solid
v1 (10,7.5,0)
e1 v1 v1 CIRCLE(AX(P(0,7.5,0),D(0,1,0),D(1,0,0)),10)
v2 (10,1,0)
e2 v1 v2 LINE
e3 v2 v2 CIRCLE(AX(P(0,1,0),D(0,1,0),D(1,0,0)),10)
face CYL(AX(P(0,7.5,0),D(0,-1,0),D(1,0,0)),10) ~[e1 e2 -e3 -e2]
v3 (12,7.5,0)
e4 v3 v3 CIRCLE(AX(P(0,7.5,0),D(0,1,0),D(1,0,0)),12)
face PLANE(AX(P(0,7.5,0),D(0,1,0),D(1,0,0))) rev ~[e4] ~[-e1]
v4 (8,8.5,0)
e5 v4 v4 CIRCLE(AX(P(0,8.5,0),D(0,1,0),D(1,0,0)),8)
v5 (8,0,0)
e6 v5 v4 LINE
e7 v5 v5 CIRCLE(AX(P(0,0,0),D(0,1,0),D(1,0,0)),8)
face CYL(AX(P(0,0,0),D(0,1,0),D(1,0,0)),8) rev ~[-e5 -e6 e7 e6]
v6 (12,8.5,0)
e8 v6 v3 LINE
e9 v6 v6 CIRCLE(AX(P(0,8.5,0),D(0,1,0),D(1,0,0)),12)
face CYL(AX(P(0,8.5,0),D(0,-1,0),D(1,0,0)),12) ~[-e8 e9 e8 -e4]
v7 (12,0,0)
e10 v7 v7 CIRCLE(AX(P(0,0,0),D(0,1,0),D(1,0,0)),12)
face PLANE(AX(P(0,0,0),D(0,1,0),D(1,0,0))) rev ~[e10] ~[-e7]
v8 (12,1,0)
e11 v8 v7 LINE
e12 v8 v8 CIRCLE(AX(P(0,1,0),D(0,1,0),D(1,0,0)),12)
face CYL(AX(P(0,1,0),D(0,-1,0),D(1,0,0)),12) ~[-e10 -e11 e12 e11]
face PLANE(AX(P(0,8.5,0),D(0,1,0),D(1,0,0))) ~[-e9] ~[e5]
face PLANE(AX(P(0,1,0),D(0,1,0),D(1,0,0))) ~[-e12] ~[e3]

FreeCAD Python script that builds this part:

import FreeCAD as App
import Part
import Sketcher

V = App.Vector
Q = App.Units.Quantity


def add_polygon(sketch, points):
    """Adds a closed chain of lines whose ends are joined by coincident constraints."""
    first, n = sketch.GeometryCount, len(points)
    for a, b in zip(points, points[1:] + points[:1]):
        sketch.addGeometry(Part.LineSegment(App.Vector(*a, 0), App.Vector(*b, 0)), False)
    for i in range(n):
        sketch.addConstraint(Sketcher.Constraint("Coincident", first + i, 2, first + (i + 1) % n, 1))

doc = App.newDocument("Part")
body = doc.addObject("PartDesign::Body", "Body")

# Sketch on XY plane
sketch1 = body.newObject("Sketcher::SketchObject", "Sketch")
sketch1.AttachmentSupport = (doc.getObject("XY_Plane"), [""])
sketch1.MapMode = "FlatFace"
add_polygon(sketch1, [(8, 8.5), (8, 0), (12, 0), (12, 1), (10, 1), (10, 7.5), (12, 7.5), (12, 8.5)])  # lines 0-7
sketch1.addConstraint([
    Sketcher.Constraint("Vertical", 0),
    Sketcher.Constraint("Horizontal", 1),
    Sketcher.Constraint("Vertical", 2),
    Sketcher.Constraint("Horizontal", 3),
    Sketcher.Constraint("Vertical", 4),
    Sketcher.Constraint("Horizontal", 5),
    Sketcher.Constraint("Vertical", 6),
    Sketcher.Constraint("Horizontal", 7),
    Sketcher.Constraint("PointOnObject", 0, 2, -1),
    Sketcher.Constraint("Vertical", 2, 2, 5, 2),
    Sketcher.Constraint("Equal", 2, 6),
    Sketcher.Constraint("DistanceX", 3, 2, 3, 1, Q("2 mm")),
    Sketcher.Constraint("DistanceY", 2, 1, 2, 2, Q("1 mm")),
    Sketcher.Constraint("DistanceY", 4, 1, 4, 2, Q("6.5 mm")),
    Sketcher.Constraint("DistanceX", -1, 1, 0, 2, Q("8 mm")),
    Sketcher.Constraint("DistanceX", 0, 2, 3, 2, Q("2 mm")),
])
revolution = body.newObject("PartDesign::Revolution", "Revolution")
revolution.Profile = sketch1
revolution.ReferenceAxis = (sketch1, ["V_Axis"])
revolution.Angle = 360

doc.recompute()
